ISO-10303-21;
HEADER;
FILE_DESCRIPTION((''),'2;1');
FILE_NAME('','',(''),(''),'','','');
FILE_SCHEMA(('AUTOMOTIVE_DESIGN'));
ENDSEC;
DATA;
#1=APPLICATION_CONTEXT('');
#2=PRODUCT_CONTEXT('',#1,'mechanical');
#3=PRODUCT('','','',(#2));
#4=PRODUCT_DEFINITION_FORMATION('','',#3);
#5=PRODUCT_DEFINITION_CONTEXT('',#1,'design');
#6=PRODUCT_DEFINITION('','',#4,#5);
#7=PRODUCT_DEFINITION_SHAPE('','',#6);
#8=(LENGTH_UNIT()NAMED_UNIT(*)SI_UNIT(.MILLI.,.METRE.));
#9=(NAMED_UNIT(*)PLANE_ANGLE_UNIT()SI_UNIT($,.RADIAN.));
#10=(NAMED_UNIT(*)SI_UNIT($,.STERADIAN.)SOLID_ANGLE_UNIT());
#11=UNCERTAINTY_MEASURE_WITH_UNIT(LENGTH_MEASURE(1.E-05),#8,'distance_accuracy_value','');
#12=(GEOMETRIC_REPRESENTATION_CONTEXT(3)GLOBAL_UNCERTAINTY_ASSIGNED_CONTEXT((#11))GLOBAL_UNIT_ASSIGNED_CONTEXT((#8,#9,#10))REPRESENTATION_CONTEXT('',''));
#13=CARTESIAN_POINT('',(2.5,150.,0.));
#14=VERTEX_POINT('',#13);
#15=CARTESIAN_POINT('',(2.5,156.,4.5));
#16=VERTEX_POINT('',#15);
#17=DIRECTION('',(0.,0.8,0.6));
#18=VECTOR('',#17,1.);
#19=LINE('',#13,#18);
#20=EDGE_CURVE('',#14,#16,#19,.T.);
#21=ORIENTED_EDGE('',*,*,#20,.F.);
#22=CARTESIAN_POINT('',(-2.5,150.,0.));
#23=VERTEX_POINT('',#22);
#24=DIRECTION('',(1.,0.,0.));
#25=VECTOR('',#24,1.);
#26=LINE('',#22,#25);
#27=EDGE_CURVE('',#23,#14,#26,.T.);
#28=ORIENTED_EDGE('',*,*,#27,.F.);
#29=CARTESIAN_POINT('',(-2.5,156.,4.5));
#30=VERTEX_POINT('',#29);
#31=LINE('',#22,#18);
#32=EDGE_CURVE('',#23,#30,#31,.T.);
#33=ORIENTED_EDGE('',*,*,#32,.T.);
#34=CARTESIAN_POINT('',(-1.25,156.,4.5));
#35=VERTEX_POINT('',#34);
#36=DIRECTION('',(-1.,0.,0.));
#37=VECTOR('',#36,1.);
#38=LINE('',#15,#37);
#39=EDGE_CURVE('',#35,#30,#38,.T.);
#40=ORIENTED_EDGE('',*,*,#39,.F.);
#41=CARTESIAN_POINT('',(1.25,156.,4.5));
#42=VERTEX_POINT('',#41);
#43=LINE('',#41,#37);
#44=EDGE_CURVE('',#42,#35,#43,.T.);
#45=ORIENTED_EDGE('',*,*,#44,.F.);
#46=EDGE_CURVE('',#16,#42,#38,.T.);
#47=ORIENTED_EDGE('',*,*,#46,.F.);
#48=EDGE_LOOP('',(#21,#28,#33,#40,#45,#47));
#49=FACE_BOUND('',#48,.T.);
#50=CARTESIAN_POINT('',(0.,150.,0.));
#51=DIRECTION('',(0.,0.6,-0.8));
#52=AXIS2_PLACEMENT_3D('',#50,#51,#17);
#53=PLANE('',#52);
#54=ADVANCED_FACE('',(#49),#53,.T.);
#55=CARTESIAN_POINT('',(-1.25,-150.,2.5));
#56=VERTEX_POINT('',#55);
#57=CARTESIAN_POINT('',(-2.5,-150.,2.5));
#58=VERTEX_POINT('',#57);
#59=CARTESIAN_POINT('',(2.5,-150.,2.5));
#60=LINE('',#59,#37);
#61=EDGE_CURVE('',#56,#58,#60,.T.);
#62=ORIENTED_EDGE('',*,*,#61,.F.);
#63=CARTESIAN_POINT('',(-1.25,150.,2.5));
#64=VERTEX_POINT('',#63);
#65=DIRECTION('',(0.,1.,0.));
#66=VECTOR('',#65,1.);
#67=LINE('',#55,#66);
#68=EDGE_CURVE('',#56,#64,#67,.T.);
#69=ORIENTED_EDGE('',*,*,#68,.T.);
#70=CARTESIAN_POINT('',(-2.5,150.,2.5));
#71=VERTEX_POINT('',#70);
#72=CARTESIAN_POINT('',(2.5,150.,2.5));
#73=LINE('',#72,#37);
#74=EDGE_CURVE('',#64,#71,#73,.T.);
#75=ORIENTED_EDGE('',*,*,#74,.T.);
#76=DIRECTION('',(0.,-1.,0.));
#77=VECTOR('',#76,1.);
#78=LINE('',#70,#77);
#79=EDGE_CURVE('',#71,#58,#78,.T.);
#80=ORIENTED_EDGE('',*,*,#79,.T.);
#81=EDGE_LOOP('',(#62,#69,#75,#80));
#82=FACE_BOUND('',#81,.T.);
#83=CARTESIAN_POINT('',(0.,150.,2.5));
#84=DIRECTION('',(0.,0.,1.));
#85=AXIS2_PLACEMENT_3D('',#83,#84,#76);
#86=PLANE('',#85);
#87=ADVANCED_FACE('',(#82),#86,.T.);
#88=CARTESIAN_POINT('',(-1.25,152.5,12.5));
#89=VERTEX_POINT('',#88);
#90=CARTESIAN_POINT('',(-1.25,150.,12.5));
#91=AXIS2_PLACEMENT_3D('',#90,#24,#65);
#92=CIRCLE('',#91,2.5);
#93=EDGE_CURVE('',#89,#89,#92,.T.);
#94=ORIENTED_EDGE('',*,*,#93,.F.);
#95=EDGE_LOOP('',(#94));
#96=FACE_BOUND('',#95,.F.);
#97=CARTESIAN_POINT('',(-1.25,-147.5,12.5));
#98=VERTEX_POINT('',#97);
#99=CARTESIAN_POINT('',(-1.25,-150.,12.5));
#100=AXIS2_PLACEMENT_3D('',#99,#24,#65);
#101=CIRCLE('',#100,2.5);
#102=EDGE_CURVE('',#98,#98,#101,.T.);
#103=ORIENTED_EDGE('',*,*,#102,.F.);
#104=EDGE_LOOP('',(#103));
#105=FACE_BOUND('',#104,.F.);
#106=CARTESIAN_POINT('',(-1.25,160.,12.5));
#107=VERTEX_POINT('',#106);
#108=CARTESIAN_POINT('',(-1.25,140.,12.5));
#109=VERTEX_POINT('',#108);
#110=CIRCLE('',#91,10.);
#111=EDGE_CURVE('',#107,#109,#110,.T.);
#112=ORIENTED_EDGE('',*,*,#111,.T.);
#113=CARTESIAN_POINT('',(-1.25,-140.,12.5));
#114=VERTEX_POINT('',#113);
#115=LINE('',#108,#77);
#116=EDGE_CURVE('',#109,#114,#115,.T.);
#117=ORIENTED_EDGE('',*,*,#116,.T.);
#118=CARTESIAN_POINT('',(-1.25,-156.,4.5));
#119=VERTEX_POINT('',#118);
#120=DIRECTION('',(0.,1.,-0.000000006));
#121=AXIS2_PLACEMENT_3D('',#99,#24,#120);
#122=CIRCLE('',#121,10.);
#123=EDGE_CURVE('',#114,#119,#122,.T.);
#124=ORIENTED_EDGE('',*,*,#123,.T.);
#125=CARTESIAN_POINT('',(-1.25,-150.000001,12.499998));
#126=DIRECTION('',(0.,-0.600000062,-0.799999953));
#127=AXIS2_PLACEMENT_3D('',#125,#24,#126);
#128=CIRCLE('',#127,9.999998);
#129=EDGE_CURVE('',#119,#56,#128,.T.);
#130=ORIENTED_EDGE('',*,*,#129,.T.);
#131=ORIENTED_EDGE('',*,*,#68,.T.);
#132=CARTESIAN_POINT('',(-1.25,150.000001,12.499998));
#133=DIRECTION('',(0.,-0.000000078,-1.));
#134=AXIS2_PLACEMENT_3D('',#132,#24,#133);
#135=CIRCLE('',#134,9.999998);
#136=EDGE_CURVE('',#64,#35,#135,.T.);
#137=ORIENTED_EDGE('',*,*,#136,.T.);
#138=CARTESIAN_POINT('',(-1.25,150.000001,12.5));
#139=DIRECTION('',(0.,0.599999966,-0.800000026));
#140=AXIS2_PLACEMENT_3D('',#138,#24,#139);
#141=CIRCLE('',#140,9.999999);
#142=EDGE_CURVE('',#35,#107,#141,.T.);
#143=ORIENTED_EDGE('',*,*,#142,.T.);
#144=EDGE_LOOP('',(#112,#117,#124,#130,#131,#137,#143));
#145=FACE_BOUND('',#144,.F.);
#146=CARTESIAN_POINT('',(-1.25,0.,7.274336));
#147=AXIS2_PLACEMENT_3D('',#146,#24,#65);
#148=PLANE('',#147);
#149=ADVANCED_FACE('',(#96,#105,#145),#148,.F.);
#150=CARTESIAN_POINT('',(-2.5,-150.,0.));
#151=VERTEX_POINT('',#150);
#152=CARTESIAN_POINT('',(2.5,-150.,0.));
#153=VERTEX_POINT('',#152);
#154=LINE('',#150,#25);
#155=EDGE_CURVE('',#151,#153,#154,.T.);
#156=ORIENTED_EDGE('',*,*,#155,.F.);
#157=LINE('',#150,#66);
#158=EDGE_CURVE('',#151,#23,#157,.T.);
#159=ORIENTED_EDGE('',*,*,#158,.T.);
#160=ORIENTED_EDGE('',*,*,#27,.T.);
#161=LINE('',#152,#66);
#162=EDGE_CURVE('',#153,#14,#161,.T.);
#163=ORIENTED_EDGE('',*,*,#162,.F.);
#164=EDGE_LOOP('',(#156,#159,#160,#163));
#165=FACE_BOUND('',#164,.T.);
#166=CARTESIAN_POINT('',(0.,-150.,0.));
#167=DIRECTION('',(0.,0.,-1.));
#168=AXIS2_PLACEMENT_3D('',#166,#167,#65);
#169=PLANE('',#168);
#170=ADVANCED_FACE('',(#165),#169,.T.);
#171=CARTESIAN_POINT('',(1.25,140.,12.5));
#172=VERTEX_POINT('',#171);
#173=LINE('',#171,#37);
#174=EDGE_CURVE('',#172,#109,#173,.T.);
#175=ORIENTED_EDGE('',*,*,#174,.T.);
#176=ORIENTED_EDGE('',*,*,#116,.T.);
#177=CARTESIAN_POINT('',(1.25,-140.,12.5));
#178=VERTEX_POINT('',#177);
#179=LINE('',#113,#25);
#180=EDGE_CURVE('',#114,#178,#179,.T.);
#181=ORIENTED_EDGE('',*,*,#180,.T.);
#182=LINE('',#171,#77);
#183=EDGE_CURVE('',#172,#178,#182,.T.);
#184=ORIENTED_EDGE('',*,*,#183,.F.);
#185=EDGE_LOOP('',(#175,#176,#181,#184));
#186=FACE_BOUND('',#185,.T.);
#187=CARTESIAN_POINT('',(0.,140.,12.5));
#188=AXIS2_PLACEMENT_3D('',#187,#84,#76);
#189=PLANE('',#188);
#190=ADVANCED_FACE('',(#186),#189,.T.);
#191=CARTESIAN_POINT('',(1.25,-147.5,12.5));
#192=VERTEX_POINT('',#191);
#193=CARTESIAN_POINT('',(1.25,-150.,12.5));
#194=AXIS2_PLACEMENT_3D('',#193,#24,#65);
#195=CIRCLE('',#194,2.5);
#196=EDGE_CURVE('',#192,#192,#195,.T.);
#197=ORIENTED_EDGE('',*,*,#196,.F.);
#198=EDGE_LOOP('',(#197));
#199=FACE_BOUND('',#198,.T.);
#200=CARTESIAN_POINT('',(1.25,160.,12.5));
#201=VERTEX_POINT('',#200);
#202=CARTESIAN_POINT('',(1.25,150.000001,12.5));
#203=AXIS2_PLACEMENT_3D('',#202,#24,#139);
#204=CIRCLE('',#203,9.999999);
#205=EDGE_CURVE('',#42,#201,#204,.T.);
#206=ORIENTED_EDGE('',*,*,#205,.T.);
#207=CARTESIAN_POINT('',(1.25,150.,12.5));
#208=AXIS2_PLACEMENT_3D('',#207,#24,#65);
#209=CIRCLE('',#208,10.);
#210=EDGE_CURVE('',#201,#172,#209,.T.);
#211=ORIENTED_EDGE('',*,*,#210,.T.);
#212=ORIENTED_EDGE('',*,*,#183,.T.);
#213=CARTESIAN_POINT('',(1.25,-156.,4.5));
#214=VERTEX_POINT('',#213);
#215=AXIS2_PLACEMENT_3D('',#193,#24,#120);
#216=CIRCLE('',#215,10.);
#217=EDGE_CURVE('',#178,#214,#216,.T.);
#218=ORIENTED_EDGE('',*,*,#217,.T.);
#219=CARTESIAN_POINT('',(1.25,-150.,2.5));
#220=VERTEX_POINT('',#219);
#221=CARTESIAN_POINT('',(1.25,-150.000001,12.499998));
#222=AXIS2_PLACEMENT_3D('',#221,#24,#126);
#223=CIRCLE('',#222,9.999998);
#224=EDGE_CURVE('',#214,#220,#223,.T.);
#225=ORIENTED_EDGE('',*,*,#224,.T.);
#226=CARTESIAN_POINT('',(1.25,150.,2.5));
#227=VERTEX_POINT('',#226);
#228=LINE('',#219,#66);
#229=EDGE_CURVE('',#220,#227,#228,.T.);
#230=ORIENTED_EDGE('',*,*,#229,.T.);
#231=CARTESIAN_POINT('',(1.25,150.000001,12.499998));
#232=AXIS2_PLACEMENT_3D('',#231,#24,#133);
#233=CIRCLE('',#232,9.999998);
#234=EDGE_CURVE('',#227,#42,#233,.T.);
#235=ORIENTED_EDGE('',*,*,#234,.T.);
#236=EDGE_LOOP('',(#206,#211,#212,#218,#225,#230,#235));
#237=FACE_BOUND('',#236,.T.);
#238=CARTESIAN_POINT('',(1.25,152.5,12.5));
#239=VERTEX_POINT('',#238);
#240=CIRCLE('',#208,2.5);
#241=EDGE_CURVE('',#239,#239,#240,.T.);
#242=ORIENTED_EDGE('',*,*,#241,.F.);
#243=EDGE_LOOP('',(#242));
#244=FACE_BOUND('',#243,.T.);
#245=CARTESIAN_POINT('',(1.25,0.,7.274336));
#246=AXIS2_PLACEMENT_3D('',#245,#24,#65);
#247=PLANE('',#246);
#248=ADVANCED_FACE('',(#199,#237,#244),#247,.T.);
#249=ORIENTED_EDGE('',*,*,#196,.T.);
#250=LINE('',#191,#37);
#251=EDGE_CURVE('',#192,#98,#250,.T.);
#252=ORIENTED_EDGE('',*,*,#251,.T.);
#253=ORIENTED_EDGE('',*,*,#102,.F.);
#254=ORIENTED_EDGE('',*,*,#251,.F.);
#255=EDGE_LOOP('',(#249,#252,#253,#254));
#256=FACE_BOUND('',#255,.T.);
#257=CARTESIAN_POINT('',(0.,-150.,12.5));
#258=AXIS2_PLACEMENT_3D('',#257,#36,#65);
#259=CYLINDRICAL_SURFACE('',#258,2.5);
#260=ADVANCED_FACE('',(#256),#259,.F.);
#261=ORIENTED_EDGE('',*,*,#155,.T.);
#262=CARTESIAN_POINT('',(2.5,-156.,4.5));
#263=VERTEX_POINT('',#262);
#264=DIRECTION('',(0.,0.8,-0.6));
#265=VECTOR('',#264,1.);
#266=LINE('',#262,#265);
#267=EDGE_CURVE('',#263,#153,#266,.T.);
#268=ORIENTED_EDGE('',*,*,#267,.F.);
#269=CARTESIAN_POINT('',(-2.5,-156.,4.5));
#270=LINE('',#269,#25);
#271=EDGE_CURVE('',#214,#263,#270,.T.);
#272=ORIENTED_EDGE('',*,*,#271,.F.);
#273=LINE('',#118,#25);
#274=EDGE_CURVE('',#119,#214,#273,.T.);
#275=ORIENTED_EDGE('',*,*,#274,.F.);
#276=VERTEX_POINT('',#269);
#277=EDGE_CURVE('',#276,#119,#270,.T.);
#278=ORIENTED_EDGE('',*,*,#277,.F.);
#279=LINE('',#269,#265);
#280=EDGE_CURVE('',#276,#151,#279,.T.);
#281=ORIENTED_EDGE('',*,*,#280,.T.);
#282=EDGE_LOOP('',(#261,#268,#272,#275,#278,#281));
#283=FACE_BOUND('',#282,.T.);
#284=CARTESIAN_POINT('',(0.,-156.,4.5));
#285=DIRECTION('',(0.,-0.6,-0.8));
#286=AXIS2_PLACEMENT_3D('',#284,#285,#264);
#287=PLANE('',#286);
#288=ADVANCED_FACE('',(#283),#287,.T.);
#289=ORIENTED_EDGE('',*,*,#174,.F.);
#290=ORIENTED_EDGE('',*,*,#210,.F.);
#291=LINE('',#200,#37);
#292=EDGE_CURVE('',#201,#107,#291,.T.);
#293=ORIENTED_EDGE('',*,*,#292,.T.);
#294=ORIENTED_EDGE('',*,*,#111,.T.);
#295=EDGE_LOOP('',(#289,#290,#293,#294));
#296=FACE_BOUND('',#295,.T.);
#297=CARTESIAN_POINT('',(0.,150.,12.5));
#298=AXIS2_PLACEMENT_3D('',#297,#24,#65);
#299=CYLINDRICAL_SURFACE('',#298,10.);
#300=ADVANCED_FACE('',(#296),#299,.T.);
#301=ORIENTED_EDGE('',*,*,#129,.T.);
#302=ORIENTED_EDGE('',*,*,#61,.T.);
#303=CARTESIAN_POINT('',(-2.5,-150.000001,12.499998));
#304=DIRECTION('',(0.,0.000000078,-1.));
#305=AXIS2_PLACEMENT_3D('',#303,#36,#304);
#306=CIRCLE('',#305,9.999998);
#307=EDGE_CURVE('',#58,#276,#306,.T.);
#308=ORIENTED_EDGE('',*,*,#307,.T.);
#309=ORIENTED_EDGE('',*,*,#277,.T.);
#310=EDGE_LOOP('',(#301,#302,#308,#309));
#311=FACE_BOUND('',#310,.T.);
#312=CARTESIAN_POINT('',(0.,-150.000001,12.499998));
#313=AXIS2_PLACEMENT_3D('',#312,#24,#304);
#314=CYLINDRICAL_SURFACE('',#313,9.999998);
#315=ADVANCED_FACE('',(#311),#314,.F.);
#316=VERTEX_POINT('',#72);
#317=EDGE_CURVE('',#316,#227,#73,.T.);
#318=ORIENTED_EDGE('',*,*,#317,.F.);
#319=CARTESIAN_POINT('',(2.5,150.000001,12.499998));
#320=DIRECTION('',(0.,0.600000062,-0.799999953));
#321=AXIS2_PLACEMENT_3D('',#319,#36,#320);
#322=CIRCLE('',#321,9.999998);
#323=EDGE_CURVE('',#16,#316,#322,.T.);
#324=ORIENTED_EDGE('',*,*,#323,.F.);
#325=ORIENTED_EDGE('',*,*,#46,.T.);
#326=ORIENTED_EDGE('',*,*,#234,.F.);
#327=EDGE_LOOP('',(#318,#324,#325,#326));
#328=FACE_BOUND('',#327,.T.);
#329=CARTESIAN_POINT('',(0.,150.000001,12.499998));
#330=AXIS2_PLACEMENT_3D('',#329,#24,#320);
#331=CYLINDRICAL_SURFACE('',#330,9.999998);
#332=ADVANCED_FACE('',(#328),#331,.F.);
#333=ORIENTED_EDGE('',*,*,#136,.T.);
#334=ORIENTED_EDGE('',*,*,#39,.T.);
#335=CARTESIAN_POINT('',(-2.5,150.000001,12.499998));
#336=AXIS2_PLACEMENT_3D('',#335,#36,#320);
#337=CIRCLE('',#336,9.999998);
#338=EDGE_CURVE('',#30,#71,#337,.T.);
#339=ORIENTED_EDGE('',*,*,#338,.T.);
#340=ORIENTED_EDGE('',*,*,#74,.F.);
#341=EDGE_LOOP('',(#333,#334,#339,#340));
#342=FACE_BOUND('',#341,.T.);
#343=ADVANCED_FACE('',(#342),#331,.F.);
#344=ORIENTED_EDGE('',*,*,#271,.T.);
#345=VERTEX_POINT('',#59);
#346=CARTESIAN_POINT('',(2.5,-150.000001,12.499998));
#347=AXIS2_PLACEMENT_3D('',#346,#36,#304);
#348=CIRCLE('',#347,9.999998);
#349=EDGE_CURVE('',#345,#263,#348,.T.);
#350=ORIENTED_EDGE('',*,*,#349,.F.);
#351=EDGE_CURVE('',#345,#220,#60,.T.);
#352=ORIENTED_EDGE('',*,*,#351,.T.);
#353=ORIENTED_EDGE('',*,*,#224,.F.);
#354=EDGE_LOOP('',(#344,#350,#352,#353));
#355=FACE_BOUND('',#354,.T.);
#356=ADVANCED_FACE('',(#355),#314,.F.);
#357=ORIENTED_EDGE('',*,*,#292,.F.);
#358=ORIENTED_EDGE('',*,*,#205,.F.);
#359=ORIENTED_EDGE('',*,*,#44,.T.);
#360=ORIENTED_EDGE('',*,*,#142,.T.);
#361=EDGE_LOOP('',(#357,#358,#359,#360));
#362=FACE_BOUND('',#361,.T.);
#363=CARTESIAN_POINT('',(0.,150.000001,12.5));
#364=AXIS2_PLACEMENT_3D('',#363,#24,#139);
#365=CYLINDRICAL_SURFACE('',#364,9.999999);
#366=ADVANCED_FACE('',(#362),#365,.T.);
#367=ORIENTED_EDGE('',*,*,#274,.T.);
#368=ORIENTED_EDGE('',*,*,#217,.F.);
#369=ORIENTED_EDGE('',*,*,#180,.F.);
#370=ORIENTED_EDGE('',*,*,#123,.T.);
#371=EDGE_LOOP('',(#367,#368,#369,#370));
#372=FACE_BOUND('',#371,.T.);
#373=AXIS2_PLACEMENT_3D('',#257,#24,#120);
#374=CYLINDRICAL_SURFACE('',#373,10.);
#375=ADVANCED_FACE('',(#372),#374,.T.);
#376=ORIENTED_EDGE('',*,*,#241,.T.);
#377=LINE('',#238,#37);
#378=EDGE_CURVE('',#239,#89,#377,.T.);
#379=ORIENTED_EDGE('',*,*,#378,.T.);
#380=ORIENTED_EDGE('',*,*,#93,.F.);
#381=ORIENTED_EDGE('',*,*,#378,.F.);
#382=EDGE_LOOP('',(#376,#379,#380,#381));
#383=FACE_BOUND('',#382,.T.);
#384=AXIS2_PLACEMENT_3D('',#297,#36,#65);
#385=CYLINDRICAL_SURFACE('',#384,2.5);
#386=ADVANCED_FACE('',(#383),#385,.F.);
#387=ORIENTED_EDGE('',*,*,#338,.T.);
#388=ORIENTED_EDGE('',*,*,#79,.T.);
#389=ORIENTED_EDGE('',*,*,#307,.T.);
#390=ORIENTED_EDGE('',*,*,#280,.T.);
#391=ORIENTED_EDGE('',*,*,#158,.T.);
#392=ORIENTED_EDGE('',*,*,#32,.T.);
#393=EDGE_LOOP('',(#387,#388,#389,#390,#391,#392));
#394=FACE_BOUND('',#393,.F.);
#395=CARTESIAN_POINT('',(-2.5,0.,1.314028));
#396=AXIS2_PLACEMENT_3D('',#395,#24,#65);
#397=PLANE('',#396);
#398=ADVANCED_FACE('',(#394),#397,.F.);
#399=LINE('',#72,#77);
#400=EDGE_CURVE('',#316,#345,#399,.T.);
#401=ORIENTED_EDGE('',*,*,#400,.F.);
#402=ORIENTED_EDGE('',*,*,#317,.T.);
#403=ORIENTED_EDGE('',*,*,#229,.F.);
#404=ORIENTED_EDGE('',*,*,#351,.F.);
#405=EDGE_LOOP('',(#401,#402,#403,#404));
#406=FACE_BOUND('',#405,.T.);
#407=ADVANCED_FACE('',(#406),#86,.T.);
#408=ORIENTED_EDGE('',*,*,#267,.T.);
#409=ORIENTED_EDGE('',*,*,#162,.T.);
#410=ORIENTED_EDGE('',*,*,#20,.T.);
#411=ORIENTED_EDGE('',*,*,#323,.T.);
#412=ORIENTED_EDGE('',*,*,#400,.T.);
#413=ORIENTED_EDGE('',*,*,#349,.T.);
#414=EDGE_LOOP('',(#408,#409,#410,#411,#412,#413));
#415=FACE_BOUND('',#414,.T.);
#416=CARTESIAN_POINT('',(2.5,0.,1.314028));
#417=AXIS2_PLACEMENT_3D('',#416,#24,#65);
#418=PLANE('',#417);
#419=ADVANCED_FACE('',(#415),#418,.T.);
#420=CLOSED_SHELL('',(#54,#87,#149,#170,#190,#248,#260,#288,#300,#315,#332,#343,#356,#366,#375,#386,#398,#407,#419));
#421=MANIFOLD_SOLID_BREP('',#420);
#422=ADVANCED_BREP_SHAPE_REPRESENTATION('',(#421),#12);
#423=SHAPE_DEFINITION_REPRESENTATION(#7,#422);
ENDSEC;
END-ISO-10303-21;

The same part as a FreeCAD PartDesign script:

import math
import FreeCAD as App
import Part
import Sketcher
from FreeCAD import Vector
Q = App.Units.Quantity

doc = App.newDocument("Part")
body = doc.addObject("PartDesign::Body", "Body")

sketch1 = body.newObject("Sketcher::SketchObject", "Sketch")
sketch1.AttachmentSupport = (doc.getObject("YZ_Plane"), [""])
sketch1.MapMode = "FlatFace"
sketch1.addGeometry([
    Part.ArcOfCircle(Part.Circle(Vector(-150.000001, 12.499998, 0), Vector(0, 0, 1), 9.999998), math.radians(-126.869902), math.radians(-89.999996)),
    Part.LineSegment(Vector(-156, 4.5, 0), Vector(-150, 0, 0)),
    Part.LineSegment(Vector(-150, 0, 0), Vector(150, 0, 0)),
    Part.LineSegment(Vector(150, 0, 0), Vector(156, 4.5, 0)),
    Part.ArcOfCircle(Part.Circle(Vector(150.000001, 12.499998, 0), Vector(0, 0, 1), 9.999998), math.radians(-90.000004), math.radians(-53.130098)),
    Part.LineSegment(Vector(150, 2.5, 0), Vector(-150, 2.5, 0)),
], False)
sketch1.addConstraint([
    Sketcher.Constraint("Tangent", 0, 1, 1, 1),
    Sketcher.Constraint("Coincident", 1, 2, 2, 1),
    Sketcher.Constraint("Coincident", 2, 2, 3, 1),
    Sketcher.Constraint("Tangent", 3, 2, 4, 2),
    Sketcher.Constraint("Tangent", 4, 1, 5, 1),
    Sketcher.Constraint("Tangent", 5, 2, 0, 2),
    Sketcher.Constraint("Horizontal", 2),
    Sketcher.Constraint("Horizontal", 5),
    Sketcher.Constraint("Equal", 0, 4),
    Sketcher.Constraint("Symmetric", 1, 2, 2, 2, -1, 1),
    Sketcher.Constraint("Horizontal", 0, 1, 3, 2),
    Sketcher.Constraint("Vertical", 0, 3, 1, 2),
    Sketcher.Constraint("DistanceX", 2, 1, 2, 2, Q("300 mm")),
    Sketcher.Constraint("DistanceX", 0, 1, -1, 1, Q("156 mm")),
    Sketcher.Constraint("DistanceY", 4, 1, 3, 2, Q("2 mm")),
])
pad1 = body.newObject("PartDesign::Pad", "Pad")
pad1.Profile = sketch1
pad1.Length = 5
pad1.Midplane = True

sketch2 = body.newObject("Sketcher::SketchObject", "Sketch001")
sketch2.AttachmentSupport = (doc.getObject("YZ_Plane"), [""])
sketch2.MapMode = "FlatFace"
sketch2.addGeometry([
    Part.LineSegment(Vector(140, 12.5, 0), Vector(-140, 12.5, 0)),
    Part.ArcOfCircle(Part.Circle(Vector(-150, 12.5, 0), Vector(0, 0, 1), 10), math.radians(0), math.radians(233.130103)),
    Part.ArcOfCircle(Part.Circle(Vector(-150.000001, 12.499998, 0), Vector(0, 0, 1), 9.999998), math.radians(-126.869902), math.radians(-89.999996)),
    Part.LineSegment(Vector(-150, 2.5, 0), Vector(150, 2.5, 0)),
    Part.ArcOfCircle(Part.Circle(Vector(150.000001, 12.499998, 0), Vector(0, 0, 1), 9.999998), math.radians(-90.000004), math.radians(-53.130098)),
    Part.ArcOfCircle(Part.Circle(Vector(150.000001, 12.5, 0), Vector(0, 0, 1), 9.999999), math.radians(-53.130105), math.radians(0.000002)),
    Part.ArcOfCircle(Part.Circle(Vector(150, 12.5, 0), Vector(0, 0, 1), 10), math.radians(0), math.radians(180)),
    Part.Circle(Vector(-150, 12.5, 0), Vector(0, 0, 1), 2.5),
    Part.Circle(Vector(150, 12.5, 0), Vector(0, 0, 1), 2.5),
], False)
sketch2.addConstraint([
    Sketcher.Constraint("Coincident", 0, 2, 1, 1),
    Sketcher.Constraint("Tangent", 1, 2, 2, 1),
    Sketcher.Constraint("Tangent", 2, 2, 3, 1),
    Sketcher.Constraint("Tangent", 3, 2, 4, 1),
    Sketcher.Constraint("Tangent", 4, 2, 5, 1),
    Sketcher.Constraint("Tangent", 5, 2, 6, 1),
    Sketcher.Constraint("Coincident", 6, 2, 0, 1),
    Sketcher.Constraint("Horizontal", 0),
    Sketcher.Constraint("Horizontal", 3),
    Sketcher.Constraint("Coincident", 6, 3, 4, 3),
    Sketcher.Constraint("Coincident", 7, 3, 1, 3),
    Sketcher.Constraint("Coincident", 8, 3, 4, 3),
    Sketcher.Constraint("Equal", 2, 4),
    Sketcher.Constraint("Equal", 7, 8),
    Sketcher.Constraint("Symmetric", 1, 3, 4, 3, -2),
    Sketcher.Constraint("Horizontal", 8, 3, 0, 2),
    Sketcher.Constraint("Horizontal", 1, 2, 4, 2),
    Sketcher.Constraint("Horizontal", 0, 2, 5, 2),
    Sketcher.Constraint("Diameter", 7, Q("5 mm")),
    Sketcher.Constraint("Radius", 1, Q("10 mm")),
    Sketcher.Constraint("DistanceX", 0, 2, 0, 1, Q("280 mm")),
    Sketcher.Constraint("DistanceX", 1, 2, -1, 1, Q("156 mm")),
    Sketcher.Constraint("DistanceY", -1, 1, 1, 3, Q("12.5 mm")),
])
pad2 = body.newObject("PartDesign::Pad", "Pad001")
pad2.Profile = sketch2
pad2.Length = 2.5
pad2.Midplane = True

doc.recompute()
